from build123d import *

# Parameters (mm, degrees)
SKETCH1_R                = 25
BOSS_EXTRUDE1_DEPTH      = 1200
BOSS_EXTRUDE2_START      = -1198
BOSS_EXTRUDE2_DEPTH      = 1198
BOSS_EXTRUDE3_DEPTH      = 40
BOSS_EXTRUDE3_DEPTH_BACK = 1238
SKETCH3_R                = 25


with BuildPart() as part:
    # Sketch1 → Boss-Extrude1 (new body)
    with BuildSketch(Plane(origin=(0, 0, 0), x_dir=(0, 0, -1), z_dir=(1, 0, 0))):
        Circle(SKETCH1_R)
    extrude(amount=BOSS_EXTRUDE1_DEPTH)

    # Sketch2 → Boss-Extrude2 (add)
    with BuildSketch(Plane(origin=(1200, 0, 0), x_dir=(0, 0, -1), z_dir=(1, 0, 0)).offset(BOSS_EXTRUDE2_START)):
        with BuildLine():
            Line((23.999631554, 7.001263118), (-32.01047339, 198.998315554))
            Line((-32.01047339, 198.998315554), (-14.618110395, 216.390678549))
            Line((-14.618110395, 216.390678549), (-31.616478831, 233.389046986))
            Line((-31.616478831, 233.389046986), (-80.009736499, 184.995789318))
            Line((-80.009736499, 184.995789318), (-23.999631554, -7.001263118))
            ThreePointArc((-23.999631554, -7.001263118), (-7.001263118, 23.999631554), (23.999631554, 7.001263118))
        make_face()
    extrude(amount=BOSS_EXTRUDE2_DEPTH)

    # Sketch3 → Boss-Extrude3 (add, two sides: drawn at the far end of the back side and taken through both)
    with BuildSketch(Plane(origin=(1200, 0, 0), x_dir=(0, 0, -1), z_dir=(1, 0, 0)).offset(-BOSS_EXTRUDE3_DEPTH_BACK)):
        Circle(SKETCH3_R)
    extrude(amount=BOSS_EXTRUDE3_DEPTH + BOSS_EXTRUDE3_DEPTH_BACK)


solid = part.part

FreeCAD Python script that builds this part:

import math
import FreeCAD as App
import Part
import Sketcher
from FreeCAD import Vector
Q = App.Units.Quantity

doc = App.newDocument("Part")
body = doc.addObject("PartDesign::Body", "Body")

# Sketch on YZ plane
sketch1 = body.newObject("Sketcher::SketchObject", "Sketch")
sketch1.AttachmentSupport = (doc.getObject("YZ_Plane"), [""])
sketch1.MapMode = "FlatFace"
sketch1.addGeometry(Part.Circle(Vector(0, 0, 0), Vector(0, 0, 1), 25), False)
sketch1.addConstraint(Sketcher.Constraint("Coincident", 0, 3, -1, 1))
sketch1.addConstraint(Sketcher.Constraint("Diameter", 0, Q("50 mm")))
pad1 = body.newObject("PartDesign::Pad", "Pad")
pad1.Profile = sketch1
pad1.Length = 1200

# Sketch on YZ plane
sketch2 = body.newObject("Sketcher::SketchObject", "Sketch001")
sketch2.AttachmentSupport = (doc.getObject("YZ_Plane"), [""])
sketch2.MapMode = "FlatFace"
sketch2.AttachmentOffset = App.Placement(Vector(0, 0, 2), App.Rotation())
sketch2.addGeometry(Part.LineSegment(Vector(7, -24, 0), Vector(199, 32, 0)), False)
sketch2.addGeometry(Part.LineSegment(Vector(199, 32, 0), Vector(216, 15, 0)), False)
sketch2.addGeometry(Part.LineSegment(Vector(216, 15, 0), Vector(233, 32, 0)), False)
sketch2.addGeometry(Part.LineSegment(Vector(233, 32, 0), Vector(185, 80, 0)), False)
sketch2.addGeometry(Part.LineSegment(Vector(185, 80, 0), Vector(-7, 24, 0)), False)
sketch2.addGeometry(Part.ArcOfCircle(Part.Circle(Vector(0, 0, 0), Vector(0, 0, 1), 25), math.radians(-74), math.radians(106)), False)
sketch2.addConstraint(Sketcher.Constraint("Coincident", 0, 2, 1, 1))
sketch2.addConstraint(Sketcher.Constraint("Coincident", 1, 2, 2, 1))
sketch2.addConstraint(Sketcher.Constraint("Coincident", 2, 2, 3, 1))
sketch2.addConstraint(Sketcher.Constraint("Coincident", 3, 2, 4, 1))
sketch2.addConstraint(Sketcher.Constraint("Tangent", 4, 2, 5, 2))
sketch2.addConstraint(Sketcher.Constraint("Tangent", 5, 1, 0, 1))
sketch2.addConstraint(Sketcher.Constraint("Coincident", 5, 3, -1, 1))
sketch2.addConstraint(Sketcher.Constraint("Perpendicular", 1, 2))
sketch2.addConstraint(Sketcher.Constraint("Perpendicular", 2, 3))
sketch2.addConstraint(Sketcher.Constraint("Parallel", 0, 4))
sketch2.addConstraint(Sketcher.Constraint("Equal", 0, 4))
sketch2.addConstraint(Sketcher.Constraint("Radius", 5, Q("25 mm")))
sketch2.addConstraint(Sketcher.Constraint("Angle", 1, Q("-45 deg")))
sketch2.addConstraint(Sketcher.Constraint("Distance", 0, Q("200 mm")))
sketch2.addConstraint(Sketcher.Constraint("Distance", 3, Q("68.438401 mm")))
sketch2.addConstraint(Sketcher.Constraint("DistanceX", -1, 1, 1, 2, Q("216.390679 mm")))
pad2 = body.newObject("PartDesign::Pad", "Pad001")
pad2.Profile = sketch2
pad2.Length = 1198

# Sketch on YZ plane
sketch3 = body.newObject("Sketcher::SketchObject", "Sketch002")
sketch3.AttachmentSupport = (doc.getObject("YZ_Plane"), [""])
sketch3.MapMode = "FlatFace"
sketch3.AttachmentOffset = App.Placement(Vector(0, 0, 1200), App.Rotation())
sketch3.addGeometry(Part.Circle(Vector(0, 0, 0), Vector(0, 0, 1), 25), False)
sketch3.addConstraint(Sketcher.Constraint("Coincident", 0, 3, -1, 1))
sketch3.addConstraint(Sketcher.Constraint("Diameter", 0, Q("50 mm")))
pad3 = body.newObject("PartDesign::Pad", "Pad002")
pad3.Profile = sketch3
pad3.Type = "TwoLengths"
pad3.Length = 40
pad3.Length2 = 1238

doc.recompute()
